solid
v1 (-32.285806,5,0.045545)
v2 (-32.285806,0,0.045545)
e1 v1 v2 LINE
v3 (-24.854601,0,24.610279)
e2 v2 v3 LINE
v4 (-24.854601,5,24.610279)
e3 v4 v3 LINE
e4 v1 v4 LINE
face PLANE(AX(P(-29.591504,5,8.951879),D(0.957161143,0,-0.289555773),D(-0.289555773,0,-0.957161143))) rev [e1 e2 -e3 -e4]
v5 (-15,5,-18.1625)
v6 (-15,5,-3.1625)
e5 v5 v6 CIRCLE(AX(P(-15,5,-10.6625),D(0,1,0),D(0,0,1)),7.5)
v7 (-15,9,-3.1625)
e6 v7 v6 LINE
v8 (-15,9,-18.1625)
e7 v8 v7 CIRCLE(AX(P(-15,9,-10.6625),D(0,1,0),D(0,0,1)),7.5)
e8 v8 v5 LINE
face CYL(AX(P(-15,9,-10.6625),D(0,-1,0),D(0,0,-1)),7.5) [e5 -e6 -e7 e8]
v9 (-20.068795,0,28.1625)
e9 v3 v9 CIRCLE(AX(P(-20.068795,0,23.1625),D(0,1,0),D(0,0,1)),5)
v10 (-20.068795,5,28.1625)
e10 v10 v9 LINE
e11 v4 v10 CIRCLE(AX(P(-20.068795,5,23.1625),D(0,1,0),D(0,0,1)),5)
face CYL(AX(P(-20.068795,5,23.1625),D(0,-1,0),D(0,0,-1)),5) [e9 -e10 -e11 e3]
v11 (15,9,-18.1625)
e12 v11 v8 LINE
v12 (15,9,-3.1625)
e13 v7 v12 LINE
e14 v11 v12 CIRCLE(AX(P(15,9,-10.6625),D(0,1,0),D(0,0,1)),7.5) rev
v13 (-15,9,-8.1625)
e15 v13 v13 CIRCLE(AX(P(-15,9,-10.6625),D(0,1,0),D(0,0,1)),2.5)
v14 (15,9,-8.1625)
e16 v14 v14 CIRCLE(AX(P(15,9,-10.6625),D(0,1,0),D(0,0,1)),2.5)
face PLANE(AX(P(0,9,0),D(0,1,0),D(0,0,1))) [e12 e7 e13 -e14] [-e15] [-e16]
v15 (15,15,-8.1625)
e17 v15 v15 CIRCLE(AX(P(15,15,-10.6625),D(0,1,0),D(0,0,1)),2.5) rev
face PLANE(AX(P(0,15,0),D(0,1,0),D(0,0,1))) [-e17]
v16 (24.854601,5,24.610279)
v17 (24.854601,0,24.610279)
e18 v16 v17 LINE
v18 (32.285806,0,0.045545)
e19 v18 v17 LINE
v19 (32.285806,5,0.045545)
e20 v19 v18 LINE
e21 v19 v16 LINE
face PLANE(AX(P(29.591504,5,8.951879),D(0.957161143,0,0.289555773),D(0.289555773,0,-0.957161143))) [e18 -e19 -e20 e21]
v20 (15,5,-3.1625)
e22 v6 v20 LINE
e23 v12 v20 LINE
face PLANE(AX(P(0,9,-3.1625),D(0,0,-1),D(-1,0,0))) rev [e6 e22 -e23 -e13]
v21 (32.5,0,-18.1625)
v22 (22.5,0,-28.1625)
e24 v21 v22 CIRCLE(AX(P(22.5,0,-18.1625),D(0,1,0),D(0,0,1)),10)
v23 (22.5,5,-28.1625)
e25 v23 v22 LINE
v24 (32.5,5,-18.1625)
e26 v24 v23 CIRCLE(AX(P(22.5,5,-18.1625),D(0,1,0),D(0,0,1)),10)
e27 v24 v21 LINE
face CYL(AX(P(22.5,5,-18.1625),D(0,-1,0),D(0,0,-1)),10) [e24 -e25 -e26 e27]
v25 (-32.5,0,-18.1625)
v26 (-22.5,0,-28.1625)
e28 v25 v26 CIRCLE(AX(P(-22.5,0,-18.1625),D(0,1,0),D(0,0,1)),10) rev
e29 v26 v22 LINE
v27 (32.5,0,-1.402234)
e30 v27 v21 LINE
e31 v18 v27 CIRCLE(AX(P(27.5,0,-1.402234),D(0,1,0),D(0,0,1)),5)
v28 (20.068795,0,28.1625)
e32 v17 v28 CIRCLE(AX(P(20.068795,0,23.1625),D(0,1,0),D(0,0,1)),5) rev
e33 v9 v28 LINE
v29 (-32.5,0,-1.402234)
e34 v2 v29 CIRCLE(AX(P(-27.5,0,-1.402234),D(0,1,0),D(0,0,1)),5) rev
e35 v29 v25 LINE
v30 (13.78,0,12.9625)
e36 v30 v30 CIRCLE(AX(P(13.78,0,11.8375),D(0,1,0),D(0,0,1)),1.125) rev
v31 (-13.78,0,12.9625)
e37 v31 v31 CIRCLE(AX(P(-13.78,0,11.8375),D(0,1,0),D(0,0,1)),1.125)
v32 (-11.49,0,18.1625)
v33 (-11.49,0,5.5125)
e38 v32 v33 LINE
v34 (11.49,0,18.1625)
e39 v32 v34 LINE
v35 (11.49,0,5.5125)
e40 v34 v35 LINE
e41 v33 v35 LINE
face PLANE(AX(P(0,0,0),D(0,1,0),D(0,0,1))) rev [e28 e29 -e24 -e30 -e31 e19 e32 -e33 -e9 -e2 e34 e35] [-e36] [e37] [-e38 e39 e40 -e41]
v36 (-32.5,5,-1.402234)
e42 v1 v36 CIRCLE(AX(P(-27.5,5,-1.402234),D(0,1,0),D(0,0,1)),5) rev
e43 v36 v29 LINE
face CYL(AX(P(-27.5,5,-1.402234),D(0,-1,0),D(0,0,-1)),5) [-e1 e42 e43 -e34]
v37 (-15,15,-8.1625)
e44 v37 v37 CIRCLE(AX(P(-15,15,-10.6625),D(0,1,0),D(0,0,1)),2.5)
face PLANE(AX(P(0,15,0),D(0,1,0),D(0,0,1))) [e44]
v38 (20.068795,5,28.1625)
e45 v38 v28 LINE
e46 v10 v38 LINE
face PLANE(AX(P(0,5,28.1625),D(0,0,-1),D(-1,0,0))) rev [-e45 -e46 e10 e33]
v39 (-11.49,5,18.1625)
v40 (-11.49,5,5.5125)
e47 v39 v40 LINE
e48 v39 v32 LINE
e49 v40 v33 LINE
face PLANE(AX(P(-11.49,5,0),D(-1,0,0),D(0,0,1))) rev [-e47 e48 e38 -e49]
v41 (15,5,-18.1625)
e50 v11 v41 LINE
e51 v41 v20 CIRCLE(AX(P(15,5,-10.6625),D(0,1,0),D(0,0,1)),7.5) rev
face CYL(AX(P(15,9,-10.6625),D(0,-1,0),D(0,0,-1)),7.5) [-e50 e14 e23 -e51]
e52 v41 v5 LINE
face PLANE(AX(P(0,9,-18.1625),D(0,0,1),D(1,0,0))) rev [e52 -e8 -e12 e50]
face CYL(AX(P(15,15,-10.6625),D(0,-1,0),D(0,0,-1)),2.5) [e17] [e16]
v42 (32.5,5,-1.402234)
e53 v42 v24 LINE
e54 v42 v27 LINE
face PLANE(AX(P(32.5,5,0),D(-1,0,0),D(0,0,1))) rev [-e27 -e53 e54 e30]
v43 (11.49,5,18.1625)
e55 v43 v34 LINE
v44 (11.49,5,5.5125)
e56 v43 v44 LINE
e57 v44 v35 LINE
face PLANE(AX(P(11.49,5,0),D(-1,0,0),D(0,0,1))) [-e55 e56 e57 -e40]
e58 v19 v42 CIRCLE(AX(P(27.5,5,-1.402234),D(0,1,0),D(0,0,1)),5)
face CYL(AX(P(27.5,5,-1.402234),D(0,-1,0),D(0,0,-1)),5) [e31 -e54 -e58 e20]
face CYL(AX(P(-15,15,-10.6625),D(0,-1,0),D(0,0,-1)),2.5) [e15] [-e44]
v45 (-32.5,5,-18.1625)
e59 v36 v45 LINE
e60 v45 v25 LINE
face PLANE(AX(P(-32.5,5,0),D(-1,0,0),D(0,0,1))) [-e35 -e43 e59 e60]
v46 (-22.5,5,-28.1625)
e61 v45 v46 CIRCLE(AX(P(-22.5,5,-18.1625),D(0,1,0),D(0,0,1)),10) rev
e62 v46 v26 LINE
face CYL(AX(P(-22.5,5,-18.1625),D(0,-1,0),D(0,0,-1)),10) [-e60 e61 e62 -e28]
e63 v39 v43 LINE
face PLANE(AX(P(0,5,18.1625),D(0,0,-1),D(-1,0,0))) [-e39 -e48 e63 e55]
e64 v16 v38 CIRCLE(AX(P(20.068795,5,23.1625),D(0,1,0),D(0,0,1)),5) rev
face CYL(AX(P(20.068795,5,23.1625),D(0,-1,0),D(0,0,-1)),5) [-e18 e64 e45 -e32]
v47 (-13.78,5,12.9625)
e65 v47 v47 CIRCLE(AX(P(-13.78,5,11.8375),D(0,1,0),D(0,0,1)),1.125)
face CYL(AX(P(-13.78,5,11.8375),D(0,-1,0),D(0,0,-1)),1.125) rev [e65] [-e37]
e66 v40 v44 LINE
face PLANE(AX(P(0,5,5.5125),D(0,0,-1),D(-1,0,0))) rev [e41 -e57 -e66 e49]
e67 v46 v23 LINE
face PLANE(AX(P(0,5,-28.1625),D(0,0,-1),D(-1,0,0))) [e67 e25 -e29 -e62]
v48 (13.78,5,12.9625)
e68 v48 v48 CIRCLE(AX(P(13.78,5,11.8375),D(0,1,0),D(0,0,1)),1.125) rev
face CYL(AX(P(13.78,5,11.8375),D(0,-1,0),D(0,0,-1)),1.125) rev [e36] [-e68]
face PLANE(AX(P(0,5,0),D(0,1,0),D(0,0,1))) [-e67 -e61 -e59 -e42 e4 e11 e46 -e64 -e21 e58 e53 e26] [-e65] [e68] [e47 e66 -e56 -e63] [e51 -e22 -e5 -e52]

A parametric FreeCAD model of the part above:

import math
import FreeCAD as App
import Part
import Sketcher
Q = App.Units.Quantity


def add_polygon(sketch, points):
    """Adds a closed chain of lines whose ends are joined by coincident constraints."""
    first, n = sketch.GeometryCount, len(points)
    for a, b in zip(points, points[1:] + points[:1]):
        sketch.addGeometry(Part.LineSegment(App.Vector(*a, 0), App.Vector(*b, 0)), False)
    for i in range(n):
        sketch.addConstraint(Sketcher.Constraint("Coincident", first + i, 2, first + (i + 1) % n, 1))

doc = App.newDocument("Part")
body = doc.addObject("PartDesign::Body", "Body")

sketch1 = body.newObject("Sketcher::SketchObject", "Sketch")
sketch1.AttachmentSupport = (doc.getObject("XZ_Plane"), [""])
sketch1.MapMode = "FlatFace"
sketch1.addGeometry(Part.LineSegment(App.Vector(32.5, -1.402234, 0), App.Vector(32.5, -18.1625, 0)), False)
sketch1.addGeometry(Part.ArcOfCircle(Part.Circle(App.Vector(22.5, -18.1625, 0), App.Vector(0, 0, 1), 10), math.radians(-90), math.radians(0)), False)
sketch1.addGeometry(Part.LineSegment(App.Vector(22.5, -28.1625, 0), App.Vector(-22.5, -28.1625, 0)), False)
sketch1.addGeometry(Part.ArcOfCircle(Part.Circle(App.Vector(-22.5, -18.1625, 0), App.Vector(0, 0, 1), 10), math.radians(180), math.radians(270)), False)
sketch1.addGeometry(Part.LineSegment(App.Vector(-32.5, -18.1625, 0), App.Vector(-32.5, -1.402234, 0)), False)
sketch1.addGeometry(Part.ArcOfCircle(Part.Circle(App.Vector(-27.5, -1.402234, 0), App.Vector(0, 0, 1), 5), math.radians(163.168637), math.radians(180)), False)
sketch1.addGeometry(Part.LineSegment(App.Vector(-32.285806, 0.045545, 0), App.Vector(-24.854601, 24.610279, 0)), False)
sketch1.addGeometry(Part.ArcOfCircle(Part.Circle(App.Vector(-20.068795, 23.1625, 0), App.Vector(0, 0, 1), 5), math.radians(90), math.radians(163.168637)), False)
sketch1.addGeometry(Part.LineSegment(App.Vector(-20.068795, 28.1625, 0), App.Vector(20.068795, 28.1625, 0)), False)
sketch1.addGeometry(Part.ArcOfCircle(Part.Circle(App.Vector(20.068795, 23.1625, 0), App.Vector(0, 0, 1), 5), math.radians(16.831363), math.radians(90)), False)
sketch1.addGeometry(Part.LineSegment(App.Vector(24.854601, 24.610279, 0), App.Vector(32.285806, 0.045545, 0)), False)
sketch1.addGeometry(Part.ArcOfCircle(Part.Circle(App.Vector(27.5, -1.402234, 0), App.Vector(0, 0, 1), 5), math.radians(0), math.radians(16.831363)), False)
sketch1.addGeometry(Part.Circle(App.Vector(-13.78, 11.8375, 0), App.Vector(0, 0, 1), 1.125), False)
add_polygon(sketch1, [(11.49, 18.1625), (-11.49, 18.1625), (-11.49, 5.5125), (11.49, 5.5125)])
sketch1.addGeometry(Part.Circle(App.Vector(13.78, 11.8375, 0), App.Vector(0, 0, 1), 1.125), False)
sketch1.addGeometry(Part.LineSegment(App.Vector(-15, -18.1625, 0), App.Vector(15, -18.1625, 0)), False)
sketch1.addGeometry(Part.ArcOfCircle(Part.Circle(App.Vector(15, -10.6625, 0), App.Vector(0, 0, 1), 7.5), math.radians(-90), math.radians(90)), False)
sketch1.addGeometry(Part.LineSegment(App.Vector(15, -3.1625, 0), App.Vector(-15, -3.1625, 0)), False)
sketch1.addGeometry(Part.ArcOfCircle(Part.Circle(App.Vector(-15, -10.6625, 0), App.Vector(0, 0, 1), 7.5), math.radians(90), math.radians(270)), False)
sketch1.addConstraint(Sketcher.Constraint("Tangent", 0, 2, 1, 2))
sketch1.addConstraint(Sketcher.Constraint("Tangent", 1, 1, 2, 1))
sketch1.addConstraint(Sketcher.Constraint("Tangent", 2, 2, 3, 2))
sketch1.addConstraint(Sketcher.Constraint("Tangent", 3, 1, 4, 1))
sketch1.addConstraint(Sketcher.Constraint("Tangent", 4, 2, 5, 2))
sketch1.addConstraint(Sketcher.Constraint("Tangent", 5, 1, 6, 1))
sketch1.addConstraint(Sketcher.Constraint("Tangent", 6, 2, 7, 2))
sketch1.addConstraint(Sketcher.Constraint("Tangent", 7, 1, 8, 1))
sketch1.addConstraint(Sketcher.Constraint("Tangent", 8, 2, 9, 2))
sketch1.addConstraint(Sketcher.Constraint("Tangent", 9, 1, 10, 1))
sketch1.addConstraint(Sketcher.Constraint("Tangent", 10, 2, 11, 2))
sketch1.addConstraint(Sketcher.Constraint("Tangent", 11, 1, 0, 1))
sketch1.addConstraint(Sketcher.Constraint("Tangent", 18, 2, 19, 1))
sketch1.addConstraint(Sketcher.Constraint("Tangent", 19, 2, 20, 1))
sketch1.addConstraint(Sketcher.Constraint("Tangent", 20, 2, 21, 1))
sketch1.addConstraint(Sketcher.Constraint("Tangent", 21, 2, 18, 1))
sketch1.addConstraint(Sketcher.Constraint("Vertical", 0))
sketch1.addConstraint(Sketcher.Constraint("Horizontal", 2))
sketch1.addConstraint(Sketcher.Constraint("Vertical", 4))
sketch1.addConstraint(Sketcher.Constraint("Horizontal", 8))
sketch1.addConstraint(Sketcher.Constraint("Horizontal", 13))
sketch1.addConstraint(Sketcher.Constraint("Vertical", 14))
sketch1.addConstraint(Sketcher.Constraint("Horizontal", 15))
sketch1.addConstraint(Sketcher.Constraint("Vertical", 16))
sketch1.addConstraint(Sketcher.Constraint("Horizontal", 18))
sketch1.addConstraint(Sketcher.Constraint("Horizontal", 20))
sketch1.addConstraint(Sketcher.Constraint("Equal", 1, 3))
sketch1.addConstraint(Sketcher.Constraint("Equal", 5, 7))
sketch1.addConstraint(Sketcher.Constraint("Equal", 7, 9))
sketch1.addConstraint(Sketcher.Constraint("Equal", 9, 11))
sketch1.addConstraint(Sketcher.Constraint("Equal", 12, 17))
sketch1.addConstraint(Sketcher.Constraint("Symmetric", 5, 3, 11, 3, -2))
sketch1.addConstraint(Sketcher.Constraint("Symmetric", 12, 3, 17, 3, -2))
sketch1.addConstraint(Sketcher.Constraint("Horizontal", 6, 2, 9, 1))
sketch1.addConstraint(Sketcher.Constraint("Horizontal", 3, 1, 18, 2))
sketch1.addConstraint(Sketcher.Constraint("Radius", 1, Q("10 mm")))
sketch1.addConstraint(Sketcher.Constraint("Radius", 5, Q("5 mm")))
sketch1.addConstraint(Sketcher.Constraint("Radius", 19, Q("7.5 mm")))
sketch1.addConstraint(Sketcher.Constraint("Diameter", 12, Q("2.25 mm")))
sketch1.addConstraint(Sketcher.Constraint("DistanceX", 2, 2, 2, 1, Q("45 mm")))
sketch1.addConstraint(Sketcher.Constraint("DistanceX", 18, 1, 18, 2, Q("30 mm")))
sketch1.addConstraint(Sketcher.Constraint("DistanceX", -1, 1, 19, 3, Q("15 mm")))
sketch1.addConstraint(Sketcher.Constraint("DistanceY", 3, 3, 12, 3, Q("30 mm")))
sketch1.addConstraint(Sketcher.Constraint("DistanceY", 13, 2, 7, 3, Q("5 mm")))
sketch1.addConstraint(Sketcher.Constraint("DistanceX", 13, 2, 13, 1, Q("22.98 mm")))
sketch1.addConstraint(Sketcher.Constraint("DistanceY", 14, 2, 14, 1, Q("12.65 mm")))
sketch1.addConstraint(Sketcher.Constraint("DistanceX", 12, 3, -1, 1, Q("13.78 mm")))
sketch1.addConstraint(Sketcher.Constraint("DistanceX", 13, 2, -1, 1, Q("11.49 mm")))
sketch1.addConstraint(Sketcher.Constraint("DistanceY", 3, 3, 7, 3, Q("41.325 mm")))
sketch1.addConstraint(Sketcher.Constraint("DistanceX", 8, 1, 8, 2, Q("40.13759 mm")))
sketch1.addConstraint(Sketcher.Constraint("DistanceY", 1, 3, -1, 1, Q("18.1625 mm")))
sketch1.addConstraint(Sketcher.Constraint("DistanceX", 6, 2, -1, 1, Q("24.854601 mm")))
pad1 = body.newObject("PartDesign::Pad", "Pad")
pad1.Profile = sketch1
pad1.Length = 5
pad1.Reversed = True

sketch2 = body.newObject("Sketcher::SketchObject", "Sketch001")
sketch2.AttachmentSupport = (doc.getObject("XZ_Plane"), [""])
sketch2.MapMode = "FlatFace"
sketch2.addGeometry(Part.ArcOfCircle(Part.Circle(App.Vector(15, -10.6625, 0), App.Vector(0, 0, 1), 7.5), math.radians(-90), math.radians(90)), False)
sketch2.addGeometry(Part.LineSegment(App.Vector(15, -18.1625, 0), App.Vector(-15, -18.1625, 0)), False)
sketch2.addGeometry(Part.ArcOfCircle(Part.Circle(App.Vector(-15, -10.6625, 0), App.Vector(0, 0, 1), 7.5), math.radians(90), math.radians(270)), False)
sketch2.addGeometry(Part.LineSegment(App.Vector(-15, -3.1625, 0), App.Vector(15, -3.1625, 0)), False)
sketch2.addGeometry(Part.Circle(App.Vector(15, -10.6625, 0), App.Vector(0, 0, 1), 2.5), False)
sketch2.addGeometry(Part.Circle(App.Vector(-15, -10.6625, 0), App.Vector(0, 0, 1), 2.5), False)
sketch2.addConstraint(Sketcher.Constraint("Tangent", 0, 1, 1, 1))
sketch2.addConstraint(Sketcher.Constraint("Tangent", 1, 2, 2, 2))
sketch2.addConstraint(Sketcher.Constraint("Tangent", 2, 1, 3, 1))
sketch2.addConstraint(Sketcher.Constraint("Tangent", 3, 2, 0, 2))
sketch2.addConstraint(Sketcher.Constraint("Horizontal", 1))
sketch2.addConstraint(Sketcher.Constraint("Horizontal", 3))
sketch2.addConstraint(Sketcher.Constraint("Coincident", 4, 3, 0, 3))
sketch2.addConstraint(Sketcher.Constraint("Coincident", 5, 3, 2, 3))
sketch2.addConstraint(Sketcher.Constraint("Equal", 4, 5))
sketch2.addConstraint(Sketcher.Constraint("Diameter", 4, Q("5 mm")))
sketch2.addConstraint(Sketcher.Constraint("Radius", 0, Q("7.5 mm")))
sketch2.addConstraint(Sketcher.Constraint("DistanceX", 1, 2, 1, 1, Q("30 mm")))
sketch2.addConstraint(Sketcher.Constraint("DistanceX", -1, 1, 0, 3, Q("15 mm")))
sketch2.addConstraint(Sketcher.Constraint("DistanceY", 0, 3, -1, 1, Q("10.6625 mm")))
pad2 = body.newObject("PartDesign::Pad", "Pad001")
pad2.Profile = sketch2
pad2.Length = 9
pad2.Reversed = True

sketch3 = body.newObject("Sketcher::SketchObject", "Sketch002")
sketch3.AttachmentSupport = (doc.getObject("XZ_Plane"), [""])
sketch3.MapMode = "FlatFace"
sketch3.addGeometry(Part.Circle(App.Vector(15, -10.6625, 0), App.Vector(0, 0, 1), 2.5), False)
sketch3.addGeometry(Part.Circle(App.Vector(-15, -10.6625, 0), App.Vector(0, 0, 1), 2.5), False)
sketch3.addConstraint(Sketcher.Constraint("Equal", 0, 1))
sketch3.addConstraint(Sketcher.Constraint("Symmetric", 0, 3, 1, 3, -2))
sketch3.addConstraint(Sketcher.Constraint("Diameter", 0, Q("5 mm")))
sketch3.addConstraint(Sketcher.Constraint("DistanceX", -1, 1, 0, 3, Q("15 mm")))
sketch3.addConstraint(Sketcher.Constraint("DistanceY", 0, 3, -1, 1, Q("10.6625 mm")))
pad3 = body.newObject("PartDesign::Pad", "Pad002")
pad3.Profile = sketch3
pad3.Length = 15
pad3.Reversed = True

doc.recompute()
